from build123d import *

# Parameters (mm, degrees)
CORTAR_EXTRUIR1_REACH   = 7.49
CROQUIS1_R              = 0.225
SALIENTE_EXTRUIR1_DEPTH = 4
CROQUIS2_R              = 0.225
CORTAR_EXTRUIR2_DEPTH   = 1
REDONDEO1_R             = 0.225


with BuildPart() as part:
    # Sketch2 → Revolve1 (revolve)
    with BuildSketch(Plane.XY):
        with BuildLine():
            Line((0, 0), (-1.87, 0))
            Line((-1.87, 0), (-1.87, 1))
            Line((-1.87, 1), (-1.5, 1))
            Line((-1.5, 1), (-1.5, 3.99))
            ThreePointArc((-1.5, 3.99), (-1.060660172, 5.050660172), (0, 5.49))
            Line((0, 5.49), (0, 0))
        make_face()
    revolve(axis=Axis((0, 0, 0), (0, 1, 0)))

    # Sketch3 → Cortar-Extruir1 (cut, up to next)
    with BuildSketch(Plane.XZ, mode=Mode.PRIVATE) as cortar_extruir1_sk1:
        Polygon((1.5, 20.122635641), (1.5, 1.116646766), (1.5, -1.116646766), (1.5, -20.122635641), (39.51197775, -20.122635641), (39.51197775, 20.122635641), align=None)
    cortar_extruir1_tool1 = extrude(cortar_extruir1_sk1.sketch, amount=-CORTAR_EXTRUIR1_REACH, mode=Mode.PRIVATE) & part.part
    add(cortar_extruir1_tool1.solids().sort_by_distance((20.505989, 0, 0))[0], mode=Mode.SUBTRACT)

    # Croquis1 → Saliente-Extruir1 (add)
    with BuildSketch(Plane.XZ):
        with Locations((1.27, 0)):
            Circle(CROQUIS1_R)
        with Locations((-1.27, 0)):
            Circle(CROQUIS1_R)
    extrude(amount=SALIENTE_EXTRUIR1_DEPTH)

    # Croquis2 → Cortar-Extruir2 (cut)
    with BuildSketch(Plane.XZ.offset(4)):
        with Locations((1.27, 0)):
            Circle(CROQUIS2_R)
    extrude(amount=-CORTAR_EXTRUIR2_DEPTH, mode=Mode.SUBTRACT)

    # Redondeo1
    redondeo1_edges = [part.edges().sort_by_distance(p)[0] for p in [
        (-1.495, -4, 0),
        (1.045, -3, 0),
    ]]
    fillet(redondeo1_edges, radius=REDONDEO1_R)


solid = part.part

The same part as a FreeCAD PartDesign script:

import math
import FreeCAD as App
import Part
import Sketcher
from FreeCAD import Vector
Q = App.Units.Quantity


def edges_at(feature, points):
    """Names of the edges that pass closest to the given points."""
    edges = feature.Shape.Edges
    near = lambda p: min(range(len(edges)), key=lambda i: edges[i].distToShape(Part.Vertex(*p))[0])
    return sorted({f"Edge{near(p) + 1}" for p in points})

doc = App.newDocument("Part")
body = doc.addObject("PartDesign::Body", "Body")

# Sketch on XY plane
sketch1 = body.newObject("Sketcher::SketchObject", "Sketch")
sketch1.AttachmentSupport = (doc.getObject("XY_Plane"), [""])
sketch1.MapMode = "FlatFace"
sketch1.addGeometry([
    Part.LineSegment(Vector(-1.87, 0, 0), Vector(0, 0, 0)),  # 0
    Part.LineSegment(Vector(0, 0, 0), Vector(0, 5.49, 0)),  # 1
    Part.ArcOfCircle(Part.Circle(Vector(0, 3.99, 0), Vector(0, 0, 1), 1.5), math.radians(90), math.radians(180)),  # 2
    Part.LineSegment(Vector(-1.5, 3.99, 0), Vector(-1.5, 1, 0)),  # 3
    Part.LineSegment(Vector(-1.5, 1, 0), Vector(-1.87, 1, 0)),  # 4
    Part.LineSegment(Vector(-1.87, 1, 0), Vector(-1.87, 0, 0)),  # 5
], False)
sketch1.addConstraint([
    Sketcher.Constraint("Coincident", 0, 2, 1, 1),
    Sketcher.Constraint("Coincident", 1, 2, 2, 1),
    Sketcher.Constraint("Tangent", 2, 2, 3, 1),
    Sketcher.Constraint("Coincident", 3, 2, 4, 1),
    Sketcher.Constraint("Coincident", 4, 2, 5, 1),
    Sketcher.Constraint("Coincident", 5, 2, 0, 1),
    Sketcher.Constraint("Horizontal", 0),
    Sketcher.Constraint("Vertical", 1),
    Sketcher.Constraint("Vertical", 3),
    Sketcher.Constraint("Horizontal", 4),
    Sketcher.Constraint("Vertical", 5),
    Sketcher.Constraint("Coincident", 0, 2, -1, 1),
    Sketcher.Constraint("PointOnObject", 2, 3, -2),
    Sketcher.Constraint("Radius", 2, Q("1.5 mm")),
    Sketcher.Constraint("DistanceY", 5, 2, 5, 1, Q("1 mm")),
    Sketcher.Constraint("DistanceX", 0, 1, 0, 2, Q("1.87 mm")),
    Sketcher.Constraint("DistanceY", 1, 1, 1, 2, Q("5.49 mm")),
])
revolution = body.newObject("PartDesign::Revolution", "Revolution")
revolution.Profile = sketch1
revolution.ReferenceAxis = (sketch1, ["V_Axis"])
revolution.Angle = 360

# Sketch on XZ plane
sketch2 = body.newObject("Sketcher::SketchObject", "Sketch001")
sketch2.AttachmentSupport = (doc.getObject("XZ_Plane"), [""])
sketch2.MapMode = "FlatFace"
sketch2.addGeometry([
    Part.LineSegment(Vector(1.5, 20.122636, 0), Vector(1.5, -20.122636, 0)),
    Part.LineSegment(Vector(1.5, -20.122636, 0), Vector(39.511978, -20.122636, 0)),
    Part.LineSegment(Vector(39.511978, -20.122636, 0), Vector(39.511978, 20.122636, 0)),
    Part.LineSegment(Vector(39.511978, 20.122636, 0), Vector(1.5, 20.122636, 0)),
], False)
sketch2.addConstraint([
    Sketcher.Constraint("Coincident", 0, 2, 1, 1),
    Sketcher.Constraint("Coincident", 1, 2, 2, 1),
    Sketcher.Constraint("Coincident", 2, 2, 3, 1),
    Sketcher.Constraint("Coincident", 3, 2, 0, 1),
    Sketcher.Constraint("Vertical", 0),
    Sketcher.Constraint("Horizontal", 1),
    Sketcher.Constraint("Vertical", 2),
    Sketcher.Constraint("Horizontal", 3),
    Sketcher.Constraint("DistanceX", -1, 1, 0, 2, Q("1.5 mm")),
    Sketcher.Constraint("DistanceY", 0, 2, 0, 1, Q("40.245271 mm")),
    Sketcher.Constraint("DistanceX", 1, 1, 1, 2, Q("38.011978 mm")),
    Sketcher.Constraint("DistanceY", 0, 2, -1, 1, Q("20.122636 mm")),
])
pocket1 = body.newObject("PartDesign::Pocket", "Pocket")
pocket1.Profile = sketch2
pocket1.Length = 1

# Sketch on XZ plane
sketch3 = body.newObject("Sketcher::SketchObject", "Sketch002")
sketch3.AttachmentSupport = (doc.getObject("XZ_Plane"), [""])
sketch3.MapMode = "FlatFace"
sketch3.addGeometry([
    Part.Circle(Vector(1.27, 0, 0), Vector(0, 0, 1), 0.225),
    Part.Circle(Vector(-1.27, 0, 0), Vector(0, 0, 1), 0.225),
], False)
sketch3.addConstraint([
    Sketcher.Constraint("Equal", 0, 1),
    Sketcher.Constraint("Symmetric", 0, 3, 1, 3, -1, 1),
    Sketcher.Constraint("PointOnObject", 0, 3, -1),
    Sketcher.Constraint("Diameter", 0, Q("0.45 mm")),
    Sketcher.Constraint("DistanceX", -1, 1, 0, 3, Q("1.27 mm")),
])
pad1 = body.newObject("PartDesign::Pad", "Pad")
pad1.Profile = sketch3
pad1.Length = 4

# Sketch on XZ plane
sketch4 = body.newObject("Sketcher::SketchObject", "Sketch003")
sketch4.AttachmentSupport = (doc.getObject("XZ_Plane"), [""])
sketch4.MapMode = "FlatFace"
sketch4.AttachmentOffset = App.Placement(Vector(0, 0, 4), App.Rotation())
sketch4.addGeometry(Part.Circle(Vector(1.27, 0, 0), Vector(0, 0, 1), 0.225), False)
sketch4.addConstraint([
    Sketcher.Constraint("PointOnObject", 0, 3, -1),
    Sketcher.Constraint("Diameter", 0, Q("0.45 mm")),
    Sketcher.Constraint("DistanceX", -1, 1, 0, 3, Q("1.27 mm")),
])
pocket2 = body.newObject("PartDesign::Pocket", "Pocket001")
pocket2.Profile = sketch4
pocket2.Length = 1
doc.recompute()

fillet = body.newObject("PartDesign::Fillet", "Fillet")
fillet.Base = (pocket2, edges_at(pocket2, [(-1.495, -4, 0), (1.045, -3, 0)]))
fillet.Radius = 0.225

doc.recompute()
